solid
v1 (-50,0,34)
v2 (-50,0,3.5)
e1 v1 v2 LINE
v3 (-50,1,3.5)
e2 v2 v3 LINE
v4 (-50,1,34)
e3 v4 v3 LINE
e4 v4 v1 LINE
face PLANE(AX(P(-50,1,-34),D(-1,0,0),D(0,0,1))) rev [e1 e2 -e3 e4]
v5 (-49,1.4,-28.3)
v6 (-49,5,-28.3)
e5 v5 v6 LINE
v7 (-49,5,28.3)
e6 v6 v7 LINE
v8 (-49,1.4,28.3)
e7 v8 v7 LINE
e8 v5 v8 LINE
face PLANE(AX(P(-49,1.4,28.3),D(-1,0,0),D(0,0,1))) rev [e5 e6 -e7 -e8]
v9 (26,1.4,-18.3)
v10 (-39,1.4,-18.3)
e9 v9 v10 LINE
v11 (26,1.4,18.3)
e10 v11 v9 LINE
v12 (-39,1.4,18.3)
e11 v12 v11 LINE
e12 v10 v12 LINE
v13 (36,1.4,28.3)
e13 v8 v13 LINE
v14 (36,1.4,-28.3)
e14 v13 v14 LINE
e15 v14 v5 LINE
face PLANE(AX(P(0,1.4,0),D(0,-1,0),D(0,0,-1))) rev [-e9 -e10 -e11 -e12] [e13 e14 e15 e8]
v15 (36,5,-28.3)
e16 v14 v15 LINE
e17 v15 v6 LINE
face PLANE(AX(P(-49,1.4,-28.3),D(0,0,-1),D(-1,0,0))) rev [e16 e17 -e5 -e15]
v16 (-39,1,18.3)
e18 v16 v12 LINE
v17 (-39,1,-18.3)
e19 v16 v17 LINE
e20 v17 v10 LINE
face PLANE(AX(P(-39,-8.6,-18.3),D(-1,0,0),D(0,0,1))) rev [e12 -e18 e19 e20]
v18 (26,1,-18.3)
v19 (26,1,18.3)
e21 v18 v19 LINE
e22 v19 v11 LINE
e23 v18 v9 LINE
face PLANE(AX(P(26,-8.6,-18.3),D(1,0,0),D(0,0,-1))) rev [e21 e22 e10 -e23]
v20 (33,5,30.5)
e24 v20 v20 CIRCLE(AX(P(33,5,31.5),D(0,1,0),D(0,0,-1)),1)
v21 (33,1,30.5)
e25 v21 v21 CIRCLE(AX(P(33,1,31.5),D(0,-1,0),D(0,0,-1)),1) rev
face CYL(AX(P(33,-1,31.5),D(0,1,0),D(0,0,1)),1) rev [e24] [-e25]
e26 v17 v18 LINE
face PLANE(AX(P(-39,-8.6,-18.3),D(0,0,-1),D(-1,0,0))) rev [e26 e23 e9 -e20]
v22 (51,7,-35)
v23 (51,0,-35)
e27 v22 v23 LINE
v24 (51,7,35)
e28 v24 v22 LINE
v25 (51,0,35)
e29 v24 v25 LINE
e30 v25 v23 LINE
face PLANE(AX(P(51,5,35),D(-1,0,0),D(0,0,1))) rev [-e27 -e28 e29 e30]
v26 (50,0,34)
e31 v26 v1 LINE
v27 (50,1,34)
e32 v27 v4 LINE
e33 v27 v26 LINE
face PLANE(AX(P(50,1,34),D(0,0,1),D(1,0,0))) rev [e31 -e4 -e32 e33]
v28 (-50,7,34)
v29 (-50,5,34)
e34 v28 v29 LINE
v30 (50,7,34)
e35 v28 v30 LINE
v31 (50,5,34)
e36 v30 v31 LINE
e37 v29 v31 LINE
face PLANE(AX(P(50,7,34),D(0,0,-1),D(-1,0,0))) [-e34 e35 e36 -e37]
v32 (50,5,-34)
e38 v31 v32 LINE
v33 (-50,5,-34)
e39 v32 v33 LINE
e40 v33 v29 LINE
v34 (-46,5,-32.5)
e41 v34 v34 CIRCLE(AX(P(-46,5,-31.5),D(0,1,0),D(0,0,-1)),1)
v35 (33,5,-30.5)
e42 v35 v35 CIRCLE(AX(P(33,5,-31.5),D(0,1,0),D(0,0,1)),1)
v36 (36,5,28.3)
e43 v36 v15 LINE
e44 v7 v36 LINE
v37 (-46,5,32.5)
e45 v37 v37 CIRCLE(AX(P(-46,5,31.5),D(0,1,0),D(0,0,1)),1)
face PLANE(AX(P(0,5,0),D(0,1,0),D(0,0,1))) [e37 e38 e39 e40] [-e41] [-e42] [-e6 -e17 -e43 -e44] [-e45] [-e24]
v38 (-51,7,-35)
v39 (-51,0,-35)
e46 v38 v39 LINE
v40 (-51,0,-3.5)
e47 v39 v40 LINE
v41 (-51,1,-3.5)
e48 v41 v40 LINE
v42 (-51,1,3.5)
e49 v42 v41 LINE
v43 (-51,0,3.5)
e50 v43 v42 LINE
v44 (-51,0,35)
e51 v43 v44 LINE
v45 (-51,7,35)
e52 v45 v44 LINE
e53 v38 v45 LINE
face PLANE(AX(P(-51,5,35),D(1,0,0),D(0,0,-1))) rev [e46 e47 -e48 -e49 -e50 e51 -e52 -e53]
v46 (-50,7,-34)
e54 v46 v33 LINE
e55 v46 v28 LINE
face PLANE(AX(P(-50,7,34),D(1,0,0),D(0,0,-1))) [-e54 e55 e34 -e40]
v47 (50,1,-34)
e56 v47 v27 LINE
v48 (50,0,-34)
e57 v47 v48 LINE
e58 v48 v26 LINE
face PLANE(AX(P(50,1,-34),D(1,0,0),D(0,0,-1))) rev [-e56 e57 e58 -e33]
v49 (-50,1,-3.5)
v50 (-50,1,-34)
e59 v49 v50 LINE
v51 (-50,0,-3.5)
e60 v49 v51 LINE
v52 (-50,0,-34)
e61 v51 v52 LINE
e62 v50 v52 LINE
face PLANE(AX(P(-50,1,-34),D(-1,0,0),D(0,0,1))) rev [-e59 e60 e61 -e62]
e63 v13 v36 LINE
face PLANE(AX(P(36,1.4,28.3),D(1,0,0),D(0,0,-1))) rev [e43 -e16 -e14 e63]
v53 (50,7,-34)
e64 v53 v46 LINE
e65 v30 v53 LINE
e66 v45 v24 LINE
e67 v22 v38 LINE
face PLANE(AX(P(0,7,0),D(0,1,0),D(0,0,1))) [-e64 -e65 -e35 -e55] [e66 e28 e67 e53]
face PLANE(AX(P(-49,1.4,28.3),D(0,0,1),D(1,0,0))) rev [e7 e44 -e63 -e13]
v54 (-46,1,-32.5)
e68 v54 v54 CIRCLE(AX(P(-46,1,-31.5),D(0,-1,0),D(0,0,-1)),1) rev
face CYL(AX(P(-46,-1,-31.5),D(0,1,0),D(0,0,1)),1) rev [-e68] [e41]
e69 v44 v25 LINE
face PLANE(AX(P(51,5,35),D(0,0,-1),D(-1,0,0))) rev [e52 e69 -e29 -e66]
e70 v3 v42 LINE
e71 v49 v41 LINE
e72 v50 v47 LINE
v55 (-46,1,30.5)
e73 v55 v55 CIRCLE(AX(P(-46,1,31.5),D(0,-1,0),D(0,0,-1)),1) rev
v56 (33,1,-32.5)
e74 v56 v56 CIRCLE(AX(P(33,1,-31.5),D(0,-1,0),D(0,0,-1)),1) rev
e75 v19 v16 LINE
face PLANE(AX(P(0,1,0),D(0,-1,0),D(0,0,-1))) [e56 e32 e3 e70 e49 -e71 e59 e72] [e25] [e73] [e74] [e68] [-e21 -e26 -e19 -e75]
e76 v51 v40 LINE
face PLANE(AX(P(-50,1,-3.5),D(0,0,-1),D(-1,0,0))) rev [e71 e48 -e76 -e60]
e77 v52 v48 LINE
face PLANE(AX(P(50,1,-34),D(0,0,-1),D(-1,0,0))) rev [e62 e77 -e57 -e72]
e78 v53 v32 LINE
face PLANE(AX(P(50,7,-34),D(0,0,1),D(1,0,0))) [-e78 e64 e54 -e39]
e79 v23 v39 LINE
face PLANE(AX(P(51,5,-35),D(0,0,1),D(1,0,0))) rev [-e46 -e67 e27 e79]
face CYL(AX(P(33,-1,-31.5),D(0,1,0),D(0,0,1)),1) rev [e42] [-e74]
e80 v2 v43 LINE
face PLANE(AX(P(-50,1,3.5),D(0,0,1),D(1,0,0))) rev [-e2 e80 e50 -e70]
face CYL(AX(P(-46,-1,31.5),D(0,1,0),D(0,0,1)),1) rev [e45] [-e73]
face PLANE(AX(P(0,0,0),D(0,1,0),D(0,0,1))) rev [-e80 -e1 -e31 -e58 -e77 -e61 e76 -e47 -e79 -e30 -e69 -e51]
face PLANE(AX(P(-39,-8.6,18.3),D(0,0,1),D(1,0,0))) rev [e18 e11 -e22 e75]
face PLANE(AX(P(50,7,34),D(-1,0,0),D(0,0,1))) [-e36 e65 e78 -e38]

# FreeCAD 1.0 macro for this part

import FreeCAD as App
import Part
import Sketcher
from FreeCAD import Vector
Q = App.Units.Quantity

doc = App.newDocument("Part")
body = doc.addObject("PartDesign::Body", "Body")

sketch1 = body.newObject("Sketcher::SketchObject", "Sketch")
sketch1.AttachmentSupport = (doc.getObject("XZ_Plane"), [""])
sketch1.MapMode = "FlatFace"
sketch1.addGeometry([
    Part.LineSegment(Vector(-51, -35, 0), Vector(-51, 35, 0)),
    Part.LineSegment(Vector(-51, 35, 0), Vector(51, 35, 0)),
    Part.LineSegment(Vector(51, 35, 0), Vector(51, -35, 0)),
    Part.LineSegment(Vector(51, -35, 0), Vector(-51, -35, 0)),
], False)
sketch1.addConstraint([
    Sketcher.Constraint("Coincident", 0, 2, 1, 1),
    Sketcher.Constraint("Coincident", 1, 2, 2, 1),
    Sketcher.Constraint("Coincident", 2, 2, 3, 1),
    Sketcher.Constraint("Coincident", 3, 2, 0, 1),
    Sketcher.Constraint("Vertical", 0),
    Sketcher.Constraint("Horizontal", 1),
    Sketcher.Constraint("Vertical", 2),
    Sketcher.Constraint("Horizontal", 3),
    Sketcher.Constraint("Symmetric", 0, 2, 2, 2, -1, 1),
    Sketcher.Constraint("DistanceX", 1, 1, 1, 2, Q("102 mm")),
    Sketcher.Constraint("DistanceY", 0, 1, 0, 2, Q("70 mm")),
])
pad1 = body.newObject("PartDesign::Pad", "Pad")
pad1.Profile = sketch1
pad1.Length = 5
pad1.Reversed = True

sketch2 = body.newObject("Sketcher::SketchObject", "Sketch001")
sketch2.AttachmentSupport = (doc.getObject("XZ_Plane"), [""])
sketch2.MapMode = "FlatFace"
sketch2.AttachmentOffset = App.Placement(Vector(0, 0, -5), App.Rotation())
sketch2.addGeometry([
    Part.LineSegment(Vector(-49, -28.3, 0), Vector(-49, 28.3, 0)),
    Part.LineSegment(Vector(-49, 28.3, 0), Vector(36, 28.3, 0)),
    Part.LineSegment(Vector(36, 28.3, 0), Vector(36, -28.3, 0)),
    Part.LineSegment(Vector(36, -28.3, 0), Vector(-49, -28.3, 0)),
], False)
sketch2.addConstraint([
    Sketcher.Constraint("Coincident", 0, 2, 1, 1),
    Sketcher.Constraint("Coincident", 1, 2, 2, 1),
    Sketcher.Constraint("Coincident", 2, 2, 3, 1),
    Sketcher.Constraint("Coincident", 3, 2, 0, 1),
    Sketcher.Constraint("Vertical", 0),
    Sketcher.Constraint("Horizontal", 1),
    Sketcher.Constraint("Vertical", 2),
    Sketcher.Constraint("Horizontal", 3),
    Sketcher.Constraint("DistanceX", 1, 1, 1, 2, Q("85 mm")),
    Sketcher.Constraint("DistanceY", 0, 1, 0, 2, Q("56.6 mm")),
    Sketcher.Constraint("DistanceX", 0, 2, -1, 1, Q("49 mm")),
    Sketcher.Constraint("DistanceY", -1, 1, 0, 2, Q("28.3 mm")),
])
pocket1 = body.newObject("PartDesign::Pocket", "Pocket")
pocket1.Profile = sketch2
pocket1.Length = 3.6
pocket1.Reversed = True

sketch3 = body.newObject("Sketcher::SketchObject", "Sketch002")
sketch3.AttachmentSupport = (doc.getObject("XZ_Plane"), [""])
sketch3.MapMode = "FlatFace"
sketch3.AttachmentOffset = App.Placement(Vector(0, 0, -5), App.Rotation())
sketch3.addGeometry([
    Part.Circle(Vector(33, 31.5, 0), Vector(0, 0, 1), 1),
    Part.Circle(Vector(33, -31.5, 0), Vector(0, 0, 1), 1),
    Part.Circle(Vector(-46, 31.5, 0), Vector(0, 0, 1), 1),
    Part.Circle(Vector(-46, -31.5, 0), Vector(0, 0, 1), 1),
], False)
sketch3.addConstraint([
    Sketcher.Constraint("Equal", 0, 1),
    Sketcher.Constraint("Equal", 1, 2),
    Sketcher.Constraint("Equal", 2, 3),
    Sketcher.Constraint("Symmetric", 0, 3, 1, 3, -1),
    Sketcher.Constraint("Symmetric", 2, 3, 3, 3, -1),
    Sketcher.Constraint("Horizontal", 0, 3, 2, 3),
    Sketcher.Constraint("Diameter", 0, Q("2 mm")),
    Sketcher.Constraint("DistanceX", -1, 1, 0, 3, Q("33 mm")),
    Sketcher.Constraint("DistanceX", 2, 3, -1, 1, Q("46 mm")),
    Sketcher.Constraint("DistanceY", 1, 3, 0, 3, Q("63 mm")),
])
pocket2 = body.newObject("PartDesign::Pocket", "Pocket001")
pocket2.Profile = sketch3
pocket2.Length = 6
pocket2.Reversed = True

sketch4 = body.newObject("Sketcher::SketchObject", "Sketch003")
sketch4.AttachmentSupport = (doc.getObject("XZ_Plane"), [""])
sketch4.MapMode = "FlatFace"
sketch4.addGeometry([
    Part.LineSegment(Vector(-50, 34, 0), Vector(-50, -34, 0)),
    Part.LineSegment(Vector(-50, -34, 0), Vector(50, -34, 0)),
    Part.LineSegment(Vector(50, -34, 0), Vector(50, 34, 0)),
    Part.LineSegment(Vector(50, 34, 0), Vector(-50, 34, 0)),
], False)
sketch4.addConstraint([
    Sketcher.Constraint("Coincident", 0, 2, 1, 1),
    Sketcher.Constraint("Coincident", 1, 2, 2, 1),
    Sketcher.Constraint("Coincident", 2, 2, 3, 1),
    Sketcher.Constraint("Coincident", 3, 2, 0, 1),
    Sketcher.Constraint("Vertical", 0),
    Sketcher.Constraint("Horizontal", 1),
    Sketcher.Constraint("Vertical", 2),
    Sketcher.Constraint("Horizontal", 3),
    Sketcher.Constraint("Symmetric", 0, 2, 2, 2, -1, 1),
    Sketcher.Constraint("DistanceX", 1, 1, 1, 2, Q("100 mm")),
    Sketcher.Constraint("DistanceY", 0, 2, 0, 1, Q("68 mm")),
])
pocket3 = body.newObject("PartDesign::Pocket", "Pocket002")
pocket3.Profile = sketch4
pocket3.Length = 1

sketch5 = body.newObject("Sketcher::SketchObject", "Sketch004")
sketch5.AttachmentSupport = (doc.getObject("YZ_Plane"), [""])
sketch5.MapMode = "FlatFace"
sketch5.AttachmentOffset = App.Placement(Vector(0, 0, -51), App.Rotation())
sketch5.addGeometry([
    Part.LineSegment(Vector(1, -3.5, 0), Vector(0, -3.5, 0)),
    Part.LineSegment(Vector(0, -3.5, 0), Vector(0, 3.5, 0)),
    Part.LineSegment(Vector(0, 3.5, 0), Vector(1, 3.5, 0)),
    Part.LineSegment(Vector(1, 3.5, 0), Vector(1, -3.5, 0)),
], False)
sketch5.addConstraint([
    Sketcher.Constraint("Coincident", 0, 2, 1, 1),
    Sketcher.Constraint("Coincident", 1, 2, 2, 1),
    Sketcher.Constraint("Coincident", 2, 2, 3, 1),
    Sketcher.Constraint("Coincident", 3, 2, 0, 1),
    Sketcher.Constraint("Horizontal", 0),
    Sketcher.Constraint("Vertical", 1),
    Sketcher.Constraint("Horizontal", 2),
    Sketcher.Constraint("Vertical", 3),
    Sketcher.Constraint("Symmetric", 0, 2, 1, 2, -1, 1),
    Sketcher.Constraint("DistanceX", 0, 2, 0, 1, Q("1 mm")),
    Sketcher.Constraint("DistanceY", 1, 1, 1, 2, Q("7 mm")),
])
pocket4 = body.newObject("PartDesign::Pocket", "Pocket003")
pocket4.Profile = sketch5
pocket4.Length = 1
pocket4.Reversed = True

sketch6 = body.newObject("Sketcher::SketchObject", "Sketch005")
sketch6.AttachmentSupport = (doc.getObject("XZ_Plane"), [""])
sketch6.MapMode = "FlatFace"
sketch6.AttachmentOffset = App.Placement(Vector(0, 0, -1.4), App.Rotation())
sketch6.addGeometry([
    Part.LineSegment(Vector(-39, -18.3, 0), Vector(-39, 18.3, 0)),
    Part.LineSegment(Vector(-39, 18.3, 0), Vector(26, 18.3, 0)),
    Part.LineSegment(Vector(26, 18.3, 0), Vector(26, -18.3, 0)),
    Part.LineSegment(Vector(26, -18.3, 0), Vector(-39, -18.3, 0)),
], False)
sketch6.addConstraint([
    Sketcher.Constraint("Coincident", 0, 2, 1, 1),
    Sketcher.Constraint("Coincident", 1, 2, 2, 1),
    Sketcher.Constraint("Coincident", 2, 2, 3, 1),
    Sketcher.Constraint("Coincident", 3, 2, 0, 1),
    Sketcher.Constraint("Vertical", 0),
    Sketcher.Constraint("Horizontal", 1),
    Sketcher.Constraint("Vertical", 2),
    Sketcher.Constraint("Horizontal", 3),
    Sketcher.Constraint("DistanceX", 1, 1, 1, 2, Q("65 mm")),
    Sketcher.Constraint("DistanceY", 0, 1, 0, 2, Q("36.6 mm")),
    Sketcher.Constraint("DistanceX", 0, 2, -1, 1, Q("39 mm")),
    Sketcher.Constraint("DistanceY", -1, 1, 0, 2, Q("18.3 mm")),
])
pocket5 = body.newObject("PartDesign::Pocket", "Pocket004")
pocket5.Profile = sketch6
pocket5.Length = 10
pocket5.Reversed = True

sketch7 = body.newObject("Sketcher::SketchObject", "Sketch006")
sketch7.AttachmentSupport = (doc.getObject("XZ_Plane"), [""])
sketch7.MapMode = "FlatFace"
sketch7.AttachmentOffset = App.Placement(Vector(0, 0, -5), App.Rotation())
sketch7.addGeometry([
    Part.LineSegment(Vector(-51, -35, 0), Vector(-51, 35, 0)),
    Part.LineSegment(Vector(-51, 35, 0), Vector(51, 35, 0)),
    Part.LineSegment(Vector(51, 35, 0), Vector(51, -35, 0)),
    Part.LineSegment(Vector(51, -35, 0), Vector(-51, -35, 0)),
    Part.LineSegment(Vector(50, 34, 0), Vector(-50, 34, 0)),
    Part.LineSegment(Vector(-50, 34, 0), Vector(-50, -34, 0)),
    Part.LineSegment(Vector(-50, -34, 0), Vector(50, -34, 0)),
    Part.LineSegment(Vector(50, -34, 0), Vector(50, 34, 0)),
], False)
sketch7.addConstraint([
    Sketcher.Constraint("Coincident", 0, 2, 1, 1),
    Sketcher.Constraint("Coincident", 1, 2, 2, 1),
    Sketcher.Constraint("Coincident", 2, 2, 3, 1),
    Sketcher.Constraint("Coincident", 3, 2, 0, 1),
    Sketcher.Constraint("Coincident", 4, 2, 5, 1),
    Sketcher.Constraint("Coincident", 5, 2, 6, 1),
    Sketcher.Constraint("Coincident", 6, 2, 7, 1),
    Sketcher.Constraint("Coincident", 7, 2, 4, 1),
    Sketcher.Constraint("Vertical", 0),
    Sketcher.Constraint("Horizontal", 1),
    Sketcher.Constraint("Vertical", 2),
    Sketcher.Constraint("Horizontal", 3),
    Sketcher.Constraint("Horizontal", 4),
    Sketcher.Constraint("Vertical", 5),
    Sketcher.Constraint("Horizontal", 6),
    Sketcher.Constraint("Vertical", 7),
    Sketcher.Constraint("Symmetric", 0, 2, 2, 2, -1, 1),
    Sketcher.Constraint("Symmetric", 4, 2, 6, 2, -1, 1),
    Sketcher.Constraint("DistanceX", 1, 1, 1, 2, Q("102 mm")),
    Sketcher.Constraint("DistanceX", 4, 2, 4, 1, Q("100 mm")),
    Sketcher.Constraint("DistanceY", 0, 1, 0, 2, Q("70 mm")),
    Sketcher.Constraint("DistanceY", 5, 2, 5, 1, Q("68 mm")),
])
pad2 = body.newObject("PartDesign::Pad", "Pad001")
pad2.Profile = sketch7
pad2.Length = 2
pad2.Reversed = True

doc.recompute()
